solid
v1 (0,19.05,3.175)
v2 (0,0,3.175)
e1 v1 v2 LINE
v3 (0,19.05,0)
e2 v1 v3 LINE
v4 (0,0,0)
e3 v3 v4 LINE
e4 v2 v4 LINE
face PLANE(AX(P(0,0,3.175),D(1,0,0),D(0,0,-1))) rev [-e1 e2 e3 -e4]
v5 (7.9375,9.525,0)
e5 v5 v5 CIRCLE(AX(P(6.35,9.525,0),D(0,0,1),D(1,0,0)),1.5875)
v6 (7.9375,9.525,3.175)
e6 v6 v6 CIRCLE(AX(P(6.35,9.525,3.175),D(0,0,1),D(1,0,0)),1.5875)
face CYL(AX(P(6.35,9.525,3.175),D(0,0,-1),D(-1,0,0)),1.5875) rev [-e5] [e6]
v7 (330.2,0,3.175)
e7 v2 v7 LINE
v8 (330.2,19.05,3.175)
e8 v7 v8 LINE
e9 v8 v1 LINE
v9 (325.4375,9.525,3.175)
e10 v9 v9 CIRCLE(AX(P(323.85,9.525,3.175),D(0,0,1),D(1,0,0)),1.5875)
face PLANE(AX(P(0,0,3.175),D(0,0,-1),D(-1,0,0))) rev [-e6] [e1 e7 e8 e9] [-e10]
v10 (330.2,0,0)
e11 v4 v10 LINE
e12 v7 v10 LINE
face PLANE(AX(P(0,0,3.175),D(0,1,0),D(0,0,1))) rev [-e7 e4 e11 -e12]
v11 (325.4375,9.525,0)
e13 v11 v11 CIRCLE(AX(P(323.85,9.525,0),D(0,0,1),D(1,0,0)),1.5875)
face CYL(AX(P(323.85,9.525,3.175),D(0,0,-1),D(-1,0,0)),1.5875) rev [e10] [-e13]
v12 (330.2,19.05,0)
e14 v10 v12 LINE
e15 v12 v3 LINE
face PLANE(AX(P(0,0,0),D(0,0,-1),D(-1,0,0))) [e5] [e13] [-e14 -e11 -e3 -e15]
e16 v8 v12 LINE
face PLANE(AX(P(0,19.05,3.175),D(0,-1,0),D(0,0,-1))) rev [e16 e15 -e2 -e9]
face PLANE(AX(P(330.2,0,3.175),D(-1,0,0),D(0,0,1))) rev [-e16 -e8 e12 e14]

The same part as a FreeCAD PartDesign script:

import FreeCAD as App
import Part
import Sketcher

V = App.Vector
Q = App.Units.Quantity

doc = App.newDocument("Part")
body = doc.addObject("PartDesign::Body", "Body")

# Sketch on XY plane
sketch1 = body.newObject("Sketcher::SketchObject", "Sketch")
sketch1.AttachmentSupport = (doc.getObject("XY_Plane"), [""])
sketch1.MapMode = "FlatFace"
sketch1.addGeometry([
    Part.LineSegment(V(0, 19.1, 0), V(0, 0, 0)),  # 0
    Part.LineSegment(V(0, 0, 0), V(330.2, 0, 0)),  # 1
    Part.LineSegment(V(330.2, 0, 0), V(330.2, 19.1, 0)),  # 2
    Part.LineSegment(V(330.2, 19.1, 0), V(0, 19.1, 0)),  # 3
    Part.Circle(V(6.3, 9.5, 0), V(0, 0, 1), 1.6),  # 4
    Part.Circle(V(323.9, 9.5, 0), V(0, 0, 1), 1.6),  # 5
], False)
sketch1.addConstraint([
    Sketcher.Constraint("Coincident", 0, 2, 1, 1),
    Sketcher.Constraint("Coincident", 1, 2, 2, 1),
    Sketcher.Constraint("Coincident", 2, 2, 3, 1),
    Sketcher.Constraint("Coincident", 3, 2, 0, 1),
    Sketcher.Constraint("Vertical", 0),
    Sketcher.Constraint("Horizontal", 1),
    Sketcher.Constraint("Vertical", 2),
    Sketcher.Constraint("Horizontal", 3),
    Sketcher.Constraint("Coincident", 0, 2, -1, 1),
    Sketcher.Constraint("Equal", 4, 5),
    Sketcher.Constraint("Horizontal", 4, 3, 5, 3),
    Sketcher.Constraint("DistanceX", 1, 1, 1, 2, Q("13 in")),
    Sketcher.Constraint("Diameter", 4, Q("0.125 in")),
    Sketcher.Constraint("DistanceY", 0, 2, 0, 1, Q("0.75 in")),
    Sketcher.Constraint("DistanceX", 4, 3, 5, 3, Q("12.5 in")),
    Sketcher.Constraint("DistanceX", -1, 1, 4, 3, Q("0.25 in")),
    Sketcher.Constraint("DistanceY", -1, 1, 4, 3, Q("0.375 in")),
])
pad1 = body.newObject("PartDesign::Pad", "Pad")
pad1.Profile = sketch1
pad1.Length = Q("0.125 in")

doc.recompute()
